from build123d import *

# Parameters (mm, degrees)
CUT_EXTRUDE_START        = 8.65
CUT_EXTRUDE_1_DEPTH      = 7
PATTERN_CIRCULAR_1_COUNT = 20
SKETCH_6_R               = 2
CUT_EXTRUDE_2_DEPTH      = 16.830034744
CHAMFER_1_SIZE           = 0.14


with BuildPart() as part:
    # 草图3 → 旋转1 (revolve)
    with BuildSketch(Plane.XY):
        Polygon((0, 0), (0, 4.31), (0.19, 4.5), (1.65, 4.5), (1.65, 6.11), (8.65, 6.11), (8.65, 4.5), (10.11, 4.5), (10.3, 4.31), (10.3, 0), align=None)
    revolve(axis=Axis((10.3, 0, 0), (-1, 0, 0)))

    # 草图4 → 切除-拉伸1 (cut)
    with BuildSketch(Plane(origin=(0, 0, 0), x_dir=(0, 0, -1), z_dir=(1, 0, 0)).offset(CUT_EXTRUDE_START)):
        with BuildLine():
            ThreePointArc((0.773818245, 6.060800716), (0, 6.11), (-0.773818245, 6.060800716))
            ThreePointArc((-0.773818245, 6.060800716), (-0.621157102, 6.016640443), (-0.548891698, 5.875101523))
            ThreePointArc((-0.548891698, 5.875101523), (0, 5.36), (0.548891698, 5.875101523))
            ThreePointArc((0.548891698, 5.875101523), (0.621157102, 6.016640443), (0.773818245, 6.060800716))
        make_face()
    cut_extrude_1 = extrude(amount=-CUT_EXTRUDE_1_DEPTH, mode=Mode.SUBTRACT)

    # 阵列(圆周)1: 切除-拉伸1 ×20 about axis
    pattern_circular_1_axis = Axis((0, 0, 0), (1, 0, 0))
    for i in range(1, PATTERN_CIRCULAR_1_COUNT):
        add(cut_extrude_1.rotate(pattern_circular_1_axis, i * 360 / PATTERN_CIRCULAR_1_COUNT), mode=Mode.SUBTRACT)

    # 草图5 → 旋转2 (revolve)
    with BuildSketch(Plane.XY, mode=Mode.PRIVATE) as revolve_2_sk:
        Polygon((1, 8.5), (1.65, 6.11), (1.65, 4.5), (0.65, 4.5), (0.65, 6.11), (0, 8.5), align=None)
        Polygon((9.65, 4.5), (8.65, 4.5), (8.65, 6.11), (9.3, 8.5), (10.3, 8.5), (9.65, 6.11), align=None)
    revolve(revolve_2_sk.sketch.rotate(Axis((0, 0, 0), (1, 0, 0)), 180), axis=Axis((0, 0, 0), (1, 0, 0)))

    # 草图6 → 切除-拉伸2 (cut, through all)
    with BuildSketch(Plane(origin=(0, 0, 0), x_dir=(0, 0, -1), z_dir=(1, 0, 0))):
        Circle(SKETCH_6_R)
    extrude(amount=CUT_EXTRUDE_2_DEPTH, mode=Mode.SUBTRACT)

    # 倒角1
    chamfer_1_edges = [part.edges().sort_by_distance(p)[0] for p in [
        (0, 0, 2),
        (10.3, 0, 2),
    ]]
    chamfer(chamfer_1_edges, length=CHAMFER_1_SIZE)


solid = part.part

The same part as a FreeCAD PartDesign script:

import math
import FreeCAD as App
import Part
import Sketcher
from FreeCAD import Vector


def edges_at(feature, points):
    """Names of the edges that pass closest to the given points."""
    edges = feature.Shape.Edges
    near = lambda p: min(range(len(edges)), key=lambda i: edges[i].distToShape(Part.Vertex(*p))[0])
    return sorted({f"Edge{near(p) + 1}" for p in points})

doc = App.newDocument("Part")
body = doc.addObject("PartDesign::Body", "Body")

# Sketch on XY plane
sketch1 = body.newObject("Sketcher::SketchObject", "Sketch")
sketch1.AttachmentSupport = (doc.getObject("XY_Plane"), [""])
sketch1.MapMode = "FlatFace"
sketch1.addGeometry([
    Part.LineSegment(Vector(0, 4.31, 0), Vector(0, 0, 0)),  # 0
    Part.LineSegment(Vector(0, 0, 0), Vector(10.3, 0, 0)),  # 1
    Part.LineSegment(Vector(10.3, 0, 0), Vector(10.3, 4.31, 0)),  # 2
    Part.LineSegment(Vector(10.3, 4.31, 0), Vector(10.11, 4.5, 0)),  # 3
    Part.LineSegment(Vector(10.11, 4.5, 0), Vector(8.65, 4.5, 0)),  # 4
    Part.LineSegment(Vector(8.65, 4.5, 0), Vector(8.65, 6.11, 0)),  # 5
    Part.LineSegment(Vector(8.65, 6.11, 0), Vector(1.65, 6.11, 0)),  # 6
    Part.LineSegment(Vector(1.65, 6.11, 0), Vector(1.65, 4.5, 0)),  # 7
    Part.LineSegment(Vector(1.65, 4.5, 0), Vector(0.19, 4.5, 0)),  # 8
    Part.LineSegment(Vector(0.19, 4.5, 0), Vector(0, 4.31, 0)),  # 9
], False)
sketch1.addConstraint([
    Sketcher.Constraint("Coincident", 0, 2, 1, 1),
    Sketcher.Constraint("Coincident", 1, 2, 2, 1),
    Sketcher.Constraint("Coincident", 2, 2, 3, 1),
    Sketcher.Constraint("Coincident", 3, 2, 4, 1),
    Sketcher.Constraint("Coincident", 4, 2, 5, 1),
    Sketcher.Constraint("Coincident", 5, 2, 6, 1),
    Sketcher.Constraint("Coincident", 6, 2, 7, 1),
    Sketcher.Constraint("Coincident", 7, 2, 8, 1),
    Sketcher.Constraint("Coincident", 8, 2, 9, 1),
    Sketcher.Constraint("Coincident", 9, 2, 0, 1),
    Sketcher.Constraint("Vertical", 0),
    Sketcher.Constraint("Horizontal", 1),
    Sketcher.Constraint("Vertical", 2),
    Sketcher.Constraint("Horizontal", 4),
    Sketcher.Constraint("Vertical", 5),
    Sketcher.Constraint("Horizontal", 6),
    Sketcher.Constraint("Vertical", 7),
    Sketcher.Constraint("Horizontal", 8),
    Sketcher.Constraint("Coincident", 0, 2, -1, 1),
    Sketcher.Constraint("Perpendicular", 3, 9),
    Sketcher.Constraint("Horizontal", 4, 2, 7, 2),
    Sketcher.Constraint("Horizontal", 2, 2, 9, 2),
    Sketcher.Constraint("Equal", 4, 8),
    Sketcher.Constraint("Equal", 3, 9),
    Sketcher.Constraint("DistanceX", 6, 2, 6, 1, 7.0),
    Sketcher.Constraint("DistanceX", 1, 1, 1, 2, 10.3),
    Sketcher.Constraint("DistanceX", 4, 2, 4, 1, 1.46),
    Sketcher.Constraint("DistanceY", 0, 2, 0, 1, 4.31),
    Sketcher.Constraint("DistanceY", 5, 1, 5, 2, 1.61),
])
revolution = body.newObject("PartDesign::Revolution", "Revolution")
revolution.Profile = sketch1
revolution.ReferenceAxis = (sketch1, ["H_Axis"])
revolution.Angle = 360

# Sketch on YZ plane
sketch2 = body.newObject("Sketcher::SketchObject", "Sketch001")
sketch2.AttachmentSupport = (doc.getObject("YZ_Plane"), [""])
sketch2.MapMode = "FlatFace"
sketch2.AttachmentOffset = App.Placement(Vector(0, 0, 8.65), App.Rotation())
sketch2.addGeometry([
    Part.ArcOfCircle(Part.Circle(Vector(0, 0, 0), Vector(0, 0, 1), 6.11), math.radians(-7.275926), math.radians(7.275926)),
    Part.ArcOfCircle(Part.Circle(Vector(5.862411, 0.748489, 0), Vector(0, 0, 1), 0.2), math.radians(-86.362037), math.radians(7.275926)),
    Part.ArcOfCircle(Part.Circle(Vector(5.91, 0, 0), Vector(0, 0, 1), 0.55), math.radians(93.637963), math.radians(266.362037)),
    Part.ArcOfCircle(Part.Circle(Vector(5.862411, -0.748489, 0), Vector(0, 0, 1), 0.2), math.radians(-7.275926), math.radians(86.362037)),
], False)
sketch2.addConstraint([
    Sketcher.Constraint("Tangent", 0, 2, 1, 2),
    Sketcher.Constraint("Tangent", 1, 1, 2, 1),
    Sketcher.Constraint("Tangent", 2, 2, 3, 2),
    Sketcher.Constraint("Tangent", 3, 1, 0, 1),
    Sketcher.Constraint("Coincident", 0, 3, -1, 1),
    Sketcher.Constraint("Equal", 1, 3),
    Sketcher.Constraint("PointOnObject", 2, 3, -1),
    Sketcher.Constraint("Radius", 1, 0.2),
    Sketcher.Constraint("Radius", 0, 6.11),
    Sketcher.Constraint("Radius", 2, 0.55),
    Sketcher.Constraint("DistanceX", -1, 1, 2, 3, 5.91),
])
pocket1 = body.newObject("PartDesign::Pocket", "Pocket")
pocket1.Profile = sketch2
pocket1.Length = 7
doc.recompute()

polarpattern = body.newObject("PartDesign::PolarPattern", "PolarPattern")
polarpattern.Originals = [pocket1]
polarpattern.Axis = (doc.getObject("X_Axis"), [""])
polarpattern.Angle = 360
polarpattern.Occurrences = 20
body.Tip = polarpattern

# Sketch on XY plane
sketch3 = body.newObject("Sketcher::SketchObject", "Sketch002")
sketch3.AttachmentSupport = (doc.getObject("XY_Plane"), [""])
sketch3.MapMode = "FlatFace"
sketch3.addGeometry([
    Part.LineSegment(Vector(1.65, 6.11, 0), Vector(1, 8.5, 0)),  # 0
    Part.LineSegment(Vector(1, 8.5, 0), Vector(0, 8.5, 0)),  # 1
    Part.LineSegment(Vector(0, 8.5, 0), Vector(0.65, 6.11, 0)),  # 2
    Part.LineSegment(Vector(0.65, 6.11, 0), Vector(0.65, 4.5, 0)),  # 3
    Part.LineSegment(Vector(0.65, 4.5, 0), Vector(1.65, 4.5, 0)),  # 4
    Part.LineSegment(Vector(1.65, 4.5, 0), Vector(1.65, 6.11, 0)),  # 5
    Part.LineSegment(Vector(8.65, 4.5, 0), Vector(9.65, 4.5, 0)),  # 6
    Part.LineSegment(Vector(9.65, 4.5, 0), Vector(9.65, 6.11, 0)),  # 7
    Part.LineSegment(Vector(9.65, 6.11, 0), Vector(10.3, 8.5, 0)),  # 8
    Part.LineSegment(Vector(10.3, 8.5, 0), Vector(9.3, 8.5, 0)),  # 9
    Part.LineSegment(Vector(9.3, 8.5, 0), Vector(8.65, 6.11, 0)),  # 10
    Part.LineSegment(Vector(8.65, 6.11, 0), Vector(8.65, 4.5, 0)),  # 11
], False)
sketch3.addConstraint([
    Sketcher.Constraint("Coincident", 0, 2, 1, 1),
    Sketcher.Constraint("Coincident", 1, 2, 2, 1),
    Sketcher.Constraint("Coincident", 2, 2, 3, 1),
    Sketcher.Constraint("Coincident", 3, 2, 4, 1),
    Sketcher.Constraint("Coincident", 4, 2, 5, 1),
    Sketcher.Constraint("Coincident", 5, 2, 0, 1),
    Sketcher.Constraint("Coincident", 6, 2, 7, 1),
    Sketcher.Constraint("Coincident", 7, 2, 8, 1),
    Sketcher.Constraint("Coincident", 8, 2, 9, 1),
    Sketcher.Constraint("Coincident", 9, 2, 10, 1),
    Sketcher.Constraint("Coincident", 10, 2, 11, 1),
    Sketcher.Constraint("Coincident", 11, 2, 6, 1),
    Sketcher.Constraint("Horizontal", 1),
    Sketcher.Constraint("Vertical", 3),
    Sketcher.Constraint("Horizontal", 4),
    Sketcher.Constraint("Vertical", 5),
    Sketcher.Constraint("Horizontal", 6),
    Sketcher.Constraint("Vertical", 7),
    Sketcher.Constraint("Horizontal", 9),
    Sketcher.Constraint("Vertical", 11),
    Sketcher.Constraint("PointOnObject", 1, 2, -2),
    Sketcher.Constraint("Parallel", 0, 2),
    Sketcher.Constraint("Parallel", 8, 10),
    Sketcher.Constraint("Horizontal", 2, 2, 5, 2),
    Sketcher.Constraint("Horizontal", 4, 2, 6, 2),
    Sketcher.Constraint("Horizontal", 5, 2, 7, 2),
    Sketcher.Constraint("Horizontal", 1, 2, 8, 2),
    Sketcher.Constraint("Horizontal", 7, 2, 10, 2),
    Sketcher.Constraint("Equal", 4, 6),
    Sketcher.Constraint("Equal", 2, 8),
    Sketcher.Constraint("DistanceX", 1, 2, 1, 1, 1.0),
    Sketcher.Constraint("DistanceY", 3, 2, 0, 2, 4.0),
    Sketcher.Constraint("DistanceX", 4, 2, 6, 2, 8.0),
    Sketcher.Constraint("DistanceY", 3, 2, 3, 1, 1.61),
    Sketcher.Constraint("DistanceY", -1, 1, 0, 2, 8.5),
    Sketcher.Constraint("DistanceX", -1, 1, 8, 2, 10.3),
])
revolution2 = body.newObject("PartDesign::Revolution", "Revolution001")
revolution2.Profile = sketch3
revolution2.ReferenceAxis = (sketch3, ["H_Axis"])
revolution2.Angle = 360

# Sketch on YZ plane
sketch4 = body.newObject("Sketcher::SketchObject", "Sketch003")
sketch4.AttachmentSupport = (doc.getObject("YZ_Plane"), [""])
sketch4.MapMode = "FlatFace"
sketch4.addGeometry(Part.Circle(Vector(0, 0, 0), Vector(0, 0, 1), 2), False)
sketch4.addConstraint([
    Sketcher.Constraint("Coincident", 0, 3, -1, 1),
    Sketcher.Constraint("Diameter", 0, 4.0),
])
pocket2 = body.newObject("PartDesign::Pocket", "Pocket001")
pocket2.Profile = sketch4
pocket2.Type = "ThroughAll"
pocket2.Reversed = True
doc.recompute()

chamfer = body.newObject("PartDesign::Chamfer", "Chamfer")
chamfer.Base = (pocket2, edges_at(pocket2, [(0, 0, 2), (10.3, 0, 2)]))
chamfer.Size = 0.14

doc.recompute()
